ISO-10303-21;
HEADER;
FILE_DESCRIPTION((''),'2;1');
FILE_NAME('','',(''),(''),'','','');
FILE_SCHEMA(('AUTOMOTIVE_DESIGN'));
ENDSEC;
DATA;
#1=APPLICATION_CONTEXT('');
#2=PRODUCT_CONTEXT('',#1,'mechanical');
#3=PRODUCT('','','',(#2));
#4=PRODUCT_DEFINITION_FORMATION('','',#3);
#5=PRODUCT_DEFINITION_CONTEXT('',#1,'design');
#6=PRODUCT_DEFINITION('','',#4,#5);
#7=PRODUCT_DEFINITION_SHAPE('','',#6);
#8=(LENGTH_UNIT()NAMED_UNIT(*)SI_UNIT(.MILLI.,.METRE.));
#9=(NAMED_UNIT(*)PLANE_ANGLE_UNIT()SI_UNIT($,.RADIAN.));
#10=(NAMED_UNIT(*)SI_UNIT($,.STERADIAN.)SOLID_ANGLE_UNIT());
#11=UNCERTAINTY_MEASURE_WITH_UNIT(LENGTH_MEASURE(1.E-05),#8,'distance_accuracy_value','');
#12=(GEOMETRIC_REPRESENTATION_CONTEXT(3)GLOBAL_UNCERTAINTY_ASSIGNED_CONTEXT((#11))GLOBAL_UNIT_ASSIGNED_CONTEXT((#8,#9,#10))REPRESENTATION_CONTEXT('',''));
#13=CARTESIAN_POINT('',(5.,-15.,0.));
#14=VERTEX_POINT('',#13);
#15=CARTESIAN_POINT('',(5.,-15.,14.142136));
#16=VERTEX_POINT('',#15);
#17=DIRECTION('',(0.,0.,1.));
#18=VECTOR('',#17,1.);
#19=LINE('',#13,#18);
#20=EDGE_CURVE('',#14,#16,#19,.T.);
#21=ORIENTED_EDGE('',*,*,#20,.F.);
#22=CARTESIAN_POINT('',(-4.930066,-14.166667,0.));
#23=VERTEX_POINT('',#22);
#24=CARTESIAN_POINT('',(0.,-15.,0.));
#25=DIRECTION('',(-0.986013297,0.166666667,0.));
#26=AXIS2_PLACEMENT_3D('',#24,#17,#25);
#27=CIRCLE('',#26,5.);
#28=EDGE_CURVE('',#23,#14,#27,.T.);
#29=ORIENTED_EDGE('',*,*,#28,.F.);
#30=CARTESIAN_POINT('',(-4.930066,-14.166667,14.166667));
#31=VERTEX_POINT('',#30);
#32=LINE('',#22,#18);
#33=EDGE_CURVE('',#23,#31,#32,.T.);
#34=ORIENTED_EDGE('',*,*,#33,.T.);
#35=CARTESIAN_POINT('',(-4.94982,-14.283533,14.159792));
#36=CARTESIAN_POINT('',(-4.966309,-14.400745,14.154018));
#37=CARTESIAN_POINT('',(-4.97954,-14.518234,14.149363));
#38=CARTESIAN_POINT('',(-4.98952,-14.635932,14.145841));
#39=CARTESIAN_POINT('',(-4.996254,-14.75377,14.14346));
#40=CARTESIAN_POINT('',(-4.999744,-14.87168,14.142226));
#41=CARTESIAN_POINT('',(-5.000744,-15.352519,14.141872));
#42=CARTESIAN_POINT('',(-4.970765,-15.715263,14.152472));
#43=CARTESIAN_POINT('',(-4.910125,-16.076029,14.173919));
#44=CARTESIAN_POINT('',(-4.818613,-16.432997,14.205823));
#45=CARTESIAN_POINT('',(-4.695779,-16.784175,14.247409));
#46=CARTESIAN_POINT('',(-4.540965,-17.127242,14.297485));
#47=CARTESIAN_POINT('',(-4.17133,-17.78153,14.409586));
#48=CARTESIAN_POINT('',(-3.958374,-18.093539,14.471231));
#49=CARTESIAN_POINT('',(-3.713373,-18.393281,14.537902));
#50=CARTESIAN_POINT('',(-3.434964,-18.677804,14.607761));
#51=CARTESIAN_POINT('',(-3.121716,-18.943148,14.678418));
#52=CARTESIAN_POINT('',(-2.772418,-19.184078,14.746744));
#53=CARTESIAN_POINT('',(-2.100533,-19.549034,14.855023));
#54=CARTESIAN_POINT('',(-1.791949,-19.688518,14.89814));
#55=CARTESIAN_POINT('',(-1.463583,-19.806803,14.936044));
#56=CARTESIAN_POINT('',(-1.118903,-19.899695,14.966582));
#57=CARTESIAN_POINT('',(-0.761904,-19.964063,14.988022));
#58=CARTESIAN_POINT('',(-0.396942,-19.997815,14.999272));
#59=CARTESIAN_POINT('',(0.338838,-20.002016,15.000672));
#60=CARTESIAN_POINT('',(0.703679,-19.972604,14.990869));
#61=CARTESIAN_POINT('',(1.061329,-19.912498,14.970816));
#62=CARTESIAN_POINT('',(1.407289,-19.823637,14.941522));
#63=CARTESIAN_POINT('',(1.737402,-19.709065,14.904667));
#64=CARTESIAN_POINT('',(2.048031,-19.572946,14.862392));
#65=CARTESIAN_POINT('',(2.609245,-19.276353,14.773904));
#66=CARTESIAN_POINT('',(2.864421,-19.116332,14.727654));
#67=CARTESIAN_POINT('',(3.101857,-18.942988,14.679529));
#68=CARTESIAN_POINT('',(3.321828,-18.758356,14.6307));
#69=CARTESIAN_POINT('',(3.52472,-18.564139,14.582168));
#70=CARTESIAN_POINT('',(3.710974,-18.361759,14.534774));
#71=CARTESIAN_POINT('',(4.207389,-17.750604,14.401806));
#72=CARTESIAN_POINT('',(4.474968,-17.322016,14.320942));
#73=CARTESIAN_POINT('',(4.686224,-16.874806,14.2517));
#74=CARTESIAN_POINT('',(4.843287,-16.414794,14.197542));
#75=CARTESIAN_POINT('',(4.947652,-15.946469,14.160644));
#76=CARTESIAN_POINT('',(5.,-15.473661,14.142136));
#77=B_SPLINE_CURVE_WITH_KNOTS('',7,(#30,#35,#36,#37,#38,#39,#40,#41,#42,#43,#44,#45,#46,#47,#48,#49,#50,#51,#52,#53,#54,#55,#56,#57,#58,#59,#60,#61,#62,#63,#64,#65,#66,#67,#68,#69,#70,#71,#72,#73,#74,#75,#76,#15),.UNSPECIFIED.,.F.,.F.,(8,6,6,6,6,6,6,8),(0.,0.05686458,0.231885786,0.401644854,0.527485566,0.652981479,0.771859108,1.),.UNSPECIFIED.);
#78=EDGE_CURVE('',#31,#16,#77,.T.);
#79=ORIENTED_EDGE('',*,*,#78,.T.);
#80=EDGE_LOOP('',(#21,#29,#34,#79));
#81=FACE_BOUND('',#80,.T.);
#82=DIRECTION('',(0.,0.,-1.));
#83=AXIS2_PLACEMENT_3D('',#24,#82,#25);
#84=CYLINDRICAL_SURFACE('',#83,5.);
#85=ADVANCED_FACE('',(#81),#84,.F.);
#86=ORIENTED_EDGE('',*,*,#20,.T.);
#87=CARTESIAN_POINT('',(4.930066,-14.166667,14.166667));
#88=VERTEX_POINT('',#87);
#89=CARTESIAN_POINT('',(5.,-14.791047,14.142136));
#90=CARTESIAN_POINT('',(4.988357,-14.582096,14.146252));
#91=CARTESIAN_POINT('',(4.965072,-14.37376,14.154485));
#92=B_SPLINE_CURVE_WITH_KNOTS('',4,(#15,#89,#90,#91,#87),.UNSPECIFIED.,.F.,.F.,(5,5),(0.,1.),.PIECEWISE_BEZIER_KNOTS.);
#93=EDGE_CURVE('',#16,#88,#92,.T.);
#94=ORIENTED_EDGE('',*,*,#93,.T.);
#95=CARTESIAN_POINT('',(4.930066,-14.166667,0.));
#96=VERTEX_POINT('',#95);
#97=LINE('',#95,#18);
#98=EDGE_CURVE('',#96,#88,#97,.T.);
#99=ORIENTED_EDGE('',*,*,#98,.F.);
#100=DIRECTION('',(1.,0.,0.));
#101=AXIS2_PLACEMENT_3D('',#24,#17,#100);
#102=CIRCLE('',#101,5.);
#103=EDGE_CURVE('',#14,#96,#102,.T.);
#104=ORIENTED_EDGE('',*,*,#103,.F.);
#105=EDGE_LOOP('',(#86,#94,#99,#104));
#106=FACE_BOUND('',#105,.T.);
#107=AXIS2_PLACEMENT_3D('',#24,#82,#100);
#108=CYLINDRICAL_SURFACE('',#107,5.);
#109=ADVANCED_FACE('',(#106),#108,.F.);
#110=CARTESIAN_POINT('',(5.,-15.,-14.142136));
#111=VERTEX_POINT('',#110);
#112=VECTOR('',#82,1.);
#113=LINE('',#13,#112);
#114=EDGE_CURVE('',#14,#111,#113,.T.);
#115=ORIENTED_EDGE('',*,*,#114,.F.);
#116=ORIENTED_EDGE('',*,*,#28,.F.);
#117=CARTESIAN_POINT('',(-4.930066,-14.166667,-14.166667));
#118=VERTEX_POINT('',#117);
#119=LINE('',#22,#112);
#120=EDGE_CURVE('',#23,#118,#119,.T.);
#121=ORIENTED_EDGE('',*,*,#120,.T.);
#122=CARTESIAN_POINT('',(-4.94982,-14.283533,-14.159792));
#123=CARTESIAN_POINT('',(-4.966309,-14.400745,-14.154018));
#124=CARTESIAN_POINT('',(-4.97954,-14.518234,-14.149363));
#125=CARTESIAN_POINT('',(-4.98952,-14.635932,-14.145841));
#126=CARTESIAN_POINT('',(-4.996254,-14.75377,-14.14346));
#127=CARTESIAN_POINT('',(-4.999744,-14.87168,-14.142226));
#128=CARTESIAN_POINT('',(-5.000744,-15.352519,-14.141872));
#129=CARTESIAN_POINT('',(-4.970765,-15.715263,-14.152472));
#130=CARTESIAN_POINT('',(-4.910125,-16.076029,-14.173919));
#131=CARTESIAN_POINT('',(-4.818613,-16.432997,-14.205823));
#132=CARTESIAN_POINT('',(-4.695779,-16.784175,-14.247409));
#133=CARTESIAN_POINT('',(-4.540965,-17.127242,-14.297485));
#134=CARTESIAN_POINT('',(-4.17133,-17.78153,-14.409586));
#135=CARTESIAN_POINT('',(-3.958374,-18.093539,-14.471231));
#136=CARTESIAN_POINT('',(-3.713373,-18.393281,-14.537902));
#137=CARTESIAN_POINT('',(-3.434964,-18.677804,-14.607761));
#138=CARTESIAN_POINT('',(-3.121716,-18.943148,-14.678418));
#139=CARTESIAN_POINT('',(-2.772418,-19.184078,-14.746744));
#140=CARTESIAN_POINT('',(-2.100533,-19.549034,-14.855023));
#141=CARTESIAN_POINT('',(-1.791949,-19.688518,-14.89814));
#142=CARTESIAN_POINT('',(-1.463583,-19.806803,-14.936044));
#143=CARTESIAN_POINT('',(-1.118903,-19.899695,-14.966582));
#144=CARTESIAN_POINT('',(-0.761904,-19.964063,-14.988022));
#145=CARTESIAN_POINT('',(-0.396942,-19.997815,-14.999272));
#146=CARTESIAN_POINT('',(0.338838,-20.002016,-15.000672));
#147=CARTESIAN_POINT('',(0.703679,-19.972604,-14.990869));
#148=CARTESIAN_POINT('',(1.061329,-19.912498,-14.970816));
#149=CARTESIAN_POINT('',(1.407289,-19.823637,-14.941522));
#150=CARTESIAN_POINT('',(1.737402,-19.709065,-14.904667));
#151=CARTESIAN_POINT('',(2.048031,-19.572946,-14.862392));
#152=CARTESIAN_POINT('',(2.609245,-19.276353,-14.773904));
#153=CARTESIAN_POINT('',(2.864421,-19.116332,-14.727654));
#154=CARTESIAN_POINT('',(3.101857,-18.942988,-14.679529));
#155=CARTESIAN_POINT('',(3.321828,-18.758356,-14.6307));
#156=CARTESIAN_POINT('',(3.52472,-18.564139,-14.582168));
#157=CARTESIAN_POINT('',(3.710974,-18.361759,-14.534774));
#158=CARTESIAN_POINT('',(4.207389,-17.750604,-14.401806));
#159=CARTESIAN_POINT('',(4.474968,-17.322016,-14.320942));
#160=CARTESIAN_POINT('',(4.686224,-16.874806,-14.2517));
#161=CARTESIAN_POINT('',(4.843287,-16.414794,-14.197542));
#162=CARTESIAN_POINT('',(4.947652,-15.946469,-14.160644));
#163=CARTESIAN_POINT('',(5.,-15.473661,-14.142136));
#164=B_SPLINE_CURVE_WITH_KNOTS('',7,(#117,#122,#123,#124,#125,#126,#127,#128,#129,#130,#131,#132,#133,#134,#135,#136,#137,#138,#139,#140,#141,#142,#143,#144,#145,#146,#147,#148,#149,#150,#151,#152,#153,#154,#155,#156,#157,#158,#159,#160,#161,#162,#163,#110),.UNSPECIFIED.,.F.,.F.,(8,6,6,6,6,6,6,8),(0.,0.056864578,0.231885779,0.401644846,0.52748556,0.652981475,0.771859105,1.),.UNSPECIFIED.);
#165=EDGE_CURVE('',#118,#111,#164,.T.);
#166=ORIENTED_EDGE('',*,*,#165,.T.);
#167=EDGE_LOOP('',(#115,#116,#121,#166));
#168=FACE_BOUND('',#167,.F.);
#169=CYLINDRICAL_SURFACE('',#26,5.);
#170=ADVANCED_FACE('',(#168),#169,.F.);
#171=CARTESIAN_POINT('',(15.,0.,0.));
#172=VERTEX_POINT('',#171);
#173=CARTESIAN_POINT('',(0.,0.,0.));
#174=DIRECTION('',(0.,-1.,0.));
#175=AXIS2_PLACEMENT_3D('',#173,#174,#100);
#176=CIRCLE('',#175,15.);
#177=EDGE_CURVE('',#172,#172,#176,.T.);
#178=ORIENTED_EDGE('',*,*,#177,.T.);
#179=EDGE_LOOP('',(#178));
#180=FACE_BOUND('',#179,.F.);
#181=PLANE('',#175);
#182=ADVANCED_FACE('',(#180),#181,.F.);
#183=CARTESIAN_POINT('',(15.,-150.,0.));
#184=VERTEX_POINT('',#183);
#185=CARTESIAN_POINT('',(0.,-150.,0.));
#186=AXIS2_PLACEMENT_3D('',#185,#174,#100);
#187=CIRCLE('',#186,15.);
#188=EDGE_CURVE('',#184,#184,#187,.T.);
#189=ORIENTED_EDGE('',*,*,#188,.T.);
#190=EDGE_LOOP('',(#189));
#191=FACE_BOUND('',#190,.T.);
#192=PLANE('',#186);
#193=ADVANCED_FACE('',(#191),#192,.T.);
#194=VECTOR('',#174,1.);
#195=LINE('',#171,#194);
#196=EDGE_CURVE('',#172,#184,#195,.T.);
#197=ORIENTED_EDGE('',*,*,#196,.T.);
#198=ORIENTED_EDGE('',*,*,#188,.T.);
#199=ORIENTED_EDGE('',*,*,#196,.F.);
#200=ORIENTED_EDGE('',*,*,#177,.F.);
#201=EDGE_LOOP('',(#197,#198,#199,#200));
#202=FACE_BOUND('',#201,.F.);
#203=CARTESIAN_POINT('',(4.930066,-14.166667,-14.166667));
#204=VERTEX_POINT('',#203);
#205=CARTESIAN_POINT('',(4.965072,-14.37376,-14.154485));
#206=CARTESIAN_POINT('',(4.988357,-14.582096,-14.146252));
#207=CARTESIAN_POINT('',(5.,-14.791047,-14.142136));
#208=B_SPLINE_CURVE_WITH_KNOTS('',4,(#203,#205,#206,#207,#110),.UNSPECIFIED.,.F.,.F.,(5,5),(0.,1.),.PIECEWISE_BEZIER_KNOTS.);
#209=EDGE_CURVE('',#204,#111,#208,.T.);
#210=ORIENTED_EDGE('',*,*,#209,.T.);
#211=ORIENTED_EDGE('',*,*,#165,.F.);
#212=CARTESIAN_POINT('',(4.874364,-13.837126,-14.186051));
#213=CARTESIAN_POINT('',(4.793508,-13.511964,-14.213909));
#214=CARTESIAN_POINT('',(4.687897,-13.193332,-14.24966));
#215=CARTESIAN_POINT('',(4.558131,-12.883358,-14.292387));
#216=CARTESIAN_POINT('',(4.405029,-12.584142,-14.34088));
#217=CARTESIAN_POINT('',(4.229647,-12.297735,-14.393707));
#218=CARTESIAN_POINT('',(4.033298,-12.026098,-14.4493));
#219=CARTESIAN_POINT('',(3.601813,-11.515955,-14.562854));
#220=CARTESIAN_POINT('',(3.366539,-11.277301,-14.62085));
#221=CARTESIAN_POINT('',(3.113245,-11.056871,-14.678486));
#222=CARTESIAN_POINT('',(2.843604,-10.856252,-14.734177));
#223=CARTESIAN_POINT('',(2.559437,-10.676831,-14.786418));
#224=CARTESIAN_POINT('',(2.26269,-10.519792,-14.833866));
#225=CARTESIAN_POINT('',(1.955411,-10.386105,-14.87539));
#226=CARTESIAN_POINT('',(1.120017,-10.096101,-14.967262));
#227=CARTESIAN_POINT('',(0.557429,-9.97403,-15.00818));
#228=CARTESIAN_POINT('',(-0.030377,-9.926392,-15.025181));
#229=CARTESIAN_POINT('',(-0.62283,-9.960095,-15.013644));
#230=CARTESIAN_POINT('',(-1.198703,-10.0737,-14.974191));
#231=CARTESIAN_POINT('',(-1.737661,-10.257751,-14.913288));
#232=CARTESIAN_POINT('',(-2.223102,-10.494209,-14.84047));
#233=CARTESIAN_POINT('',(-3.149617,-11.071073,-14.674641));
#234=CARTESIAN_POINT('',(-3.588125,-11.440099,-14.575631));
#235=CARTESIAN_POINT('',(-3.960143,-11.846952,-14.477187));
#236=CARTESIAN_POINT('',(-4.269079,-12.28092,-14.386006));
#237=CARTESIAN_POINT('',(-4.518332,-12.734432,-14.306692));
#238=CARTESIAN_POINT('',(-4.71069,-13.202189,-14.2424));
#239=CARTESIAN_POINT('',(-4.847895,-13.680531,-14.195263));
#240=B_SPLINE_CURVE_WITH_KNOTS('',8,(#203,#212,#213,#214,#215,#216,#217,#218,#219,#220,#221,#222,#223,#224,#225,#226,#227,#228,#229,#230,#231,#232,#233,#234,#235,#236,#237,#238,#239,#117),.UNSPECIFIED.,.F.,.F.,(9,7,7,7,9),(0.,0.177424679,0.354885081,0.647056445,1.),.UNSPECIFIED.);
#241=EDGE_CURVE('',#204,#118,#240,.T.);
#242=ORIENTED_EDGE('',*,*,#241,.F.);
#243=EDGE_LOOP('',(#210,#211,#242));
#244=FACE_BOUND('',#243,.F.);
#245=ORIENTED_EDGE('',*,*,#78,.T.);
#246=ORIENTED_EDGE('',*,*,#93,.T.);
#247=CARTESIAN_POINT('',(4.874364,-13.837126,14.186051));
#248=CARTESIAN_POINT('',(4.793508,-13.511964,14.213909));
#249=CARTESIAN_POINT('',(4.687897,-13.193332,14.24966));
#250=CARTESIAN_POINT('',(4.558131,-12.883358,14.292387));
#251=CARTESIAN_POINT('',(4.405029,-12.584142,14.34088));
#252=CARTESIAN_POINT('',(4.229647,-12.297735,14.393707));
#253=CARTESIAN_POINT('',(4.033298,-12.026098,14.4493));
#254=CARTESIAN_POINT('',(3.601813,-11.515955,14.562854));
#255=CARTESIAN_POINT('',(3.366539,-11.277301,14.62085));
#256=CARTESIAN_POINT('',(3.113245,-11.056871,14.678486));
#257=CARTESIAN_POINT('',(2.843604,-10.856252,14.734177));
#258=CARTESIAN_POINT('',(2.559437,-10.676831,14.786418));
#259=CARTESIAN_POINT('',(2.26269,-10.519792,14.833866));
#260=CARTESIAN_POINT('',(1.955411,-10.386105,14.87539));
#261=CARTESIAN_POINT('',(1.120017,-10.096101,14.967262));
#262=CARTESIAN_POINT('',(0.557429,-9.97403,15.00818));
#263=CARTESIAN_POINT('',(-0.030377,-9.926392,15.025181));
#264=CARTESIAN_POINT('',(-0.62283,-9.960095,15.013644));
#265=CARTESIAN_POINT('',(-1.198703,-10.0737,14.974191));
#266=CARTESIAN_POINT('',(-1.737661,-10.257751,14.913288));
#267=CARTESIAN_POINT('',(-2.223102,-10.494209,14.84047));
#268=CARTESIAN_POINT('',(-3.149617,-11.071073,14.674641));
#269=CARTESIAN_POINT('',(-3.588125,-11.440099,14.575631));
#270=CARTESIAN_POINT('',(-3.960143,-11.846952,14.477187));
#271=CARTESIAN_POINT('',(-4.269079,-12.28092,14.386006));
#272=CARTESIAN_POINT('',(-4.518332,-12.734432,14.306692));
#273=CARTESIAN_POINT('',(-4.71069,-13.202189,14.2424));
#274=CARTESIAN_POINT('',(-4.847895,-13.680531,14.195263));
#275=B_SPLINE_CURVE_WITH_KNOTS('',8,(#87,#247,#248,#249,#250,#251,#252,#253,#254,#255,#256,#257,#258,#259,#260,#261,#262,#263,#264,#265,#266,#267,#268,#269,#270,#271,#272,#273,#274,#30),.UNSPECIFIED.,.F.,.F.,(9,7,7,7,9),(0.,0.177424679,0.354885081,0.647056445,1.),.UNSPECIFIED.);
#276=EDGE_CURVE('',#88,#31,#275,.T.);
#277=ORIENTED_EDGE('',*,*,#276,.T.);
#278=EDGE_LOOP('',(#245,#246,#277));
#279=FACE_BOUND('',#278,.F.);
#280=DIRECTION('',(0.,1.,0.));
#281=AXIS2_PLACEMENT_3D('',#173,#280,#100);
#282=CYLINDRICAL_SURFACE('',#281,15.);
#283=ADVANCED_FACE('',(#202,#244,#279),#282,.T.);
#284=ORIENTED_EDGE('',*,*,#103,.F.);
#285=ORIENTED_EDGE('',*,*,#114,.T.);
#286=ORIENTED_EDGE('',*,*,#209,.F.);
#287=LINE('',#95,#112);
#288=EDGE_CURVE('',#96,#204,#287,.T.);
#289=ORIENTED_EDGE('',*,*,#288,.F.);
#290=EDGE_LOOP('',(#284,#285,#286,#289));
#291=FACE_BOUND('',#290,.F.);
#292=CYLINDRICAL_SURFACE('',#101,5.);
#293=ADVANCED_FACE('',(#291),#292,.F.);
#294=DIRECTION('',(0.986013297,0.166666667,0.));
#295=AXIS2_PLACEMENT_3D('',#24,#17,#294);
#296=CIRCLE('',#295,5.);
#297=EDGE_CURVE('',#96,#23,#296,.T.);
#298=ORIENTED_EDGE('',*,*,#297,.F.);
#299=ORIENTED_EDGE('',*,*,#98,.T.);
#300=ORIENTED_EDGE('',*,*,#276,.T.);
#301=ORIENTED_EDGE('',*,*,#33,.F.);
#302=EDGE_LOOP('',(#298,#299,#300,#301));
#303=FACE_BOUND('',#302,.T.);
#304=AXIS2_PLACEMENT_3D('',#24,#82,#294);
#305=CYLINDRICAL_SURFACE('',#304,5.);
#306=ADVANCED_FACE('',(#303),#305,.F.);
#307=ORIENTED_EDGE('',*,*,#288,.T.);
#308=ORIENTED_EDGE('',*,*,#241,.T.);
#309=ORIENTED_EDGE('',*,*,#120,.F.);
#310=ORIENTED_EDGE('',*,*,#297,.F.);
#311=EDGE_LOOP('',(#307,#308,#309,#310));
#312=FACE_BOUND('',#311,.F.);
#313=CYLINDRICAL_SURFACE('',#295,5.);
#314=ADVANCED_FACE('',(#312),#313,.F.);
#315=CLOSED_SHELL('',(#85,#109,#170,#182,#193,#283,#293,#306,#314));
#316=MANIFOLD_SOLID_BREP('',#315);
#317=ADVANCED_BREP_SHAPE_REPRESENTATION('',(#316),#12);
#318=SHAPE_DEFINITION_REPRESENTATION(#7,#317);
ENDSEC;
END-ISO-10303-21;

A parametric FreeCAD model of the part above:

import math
import FreeCAD as App
import Part
import Sketcher
Q = App.Units.Quantity

doc = App.newDocument("Part")
body = doc.addObject("PartDesign::Body", "Body")

# Sketch on XZ plane
sketch1 = body.newObject("Sketcher::SketchObject", "Sketch")
sketch1.AttachmentSupport = (doc.getObject("XZ_Plane"), [""])
sketch1.MapMode = "FlatFace"
sketch1.addGeometry(Part.Circle(App.Vector(0, 0, 0), App.Vector(0, 0, 1), 15), False)
sketch1.addConstraint(Sketcher.Constraint("Coincident", 0, 3, -1, 1))
sketch1.addConstraint(Sketcher.Constraint("Diameter", 0, Q("30 mm")))
pad1 = body.newObject("PartDesign::Pad", "Pad")
pad1.Profile = sketch1
pad1.Length = 150

# Sketch on XY plane
sketch2 = body.newObject("Sketcher::SketchObject", "Sketch001")
sketch2.AttachmentSupport = (doc.getObject("XY_Plane"), [""])
sketch2.MapMode = "FlatFace"
sketch2.addGeometry(Part.ArcOfCircle(Part.Circle(App.Vector(0, -15, 0), App.Vector(0, 0, 1), 5), math.radians(170), math.radians(360)), False)
sketch2.addGeometry(Part.ArcOfCircle(Part.Circle(App.Vector(0, -15, 0), App.Vector(0, 0, 1), 5), math.radians(0), math.radians(9.59)), False)
sketch2.addGeometry(Part.ArcOfCircle(Part.Circle(App.Vector(0, -15, 0), App.Vector(0, 0, 1), 5), math.radians(10), math.radians(170)), False)
sketch2.addConstraint(Sketcher.Constraint("Tangent", 0, 2, 1, 1))
sketch2.addConstraint(Sketcher.Constraint("Tangent", 1, 2, 2, 1))
sketch2.addConstraint(Sketcher.Constraint("Tangent", 2, 2, 0, 1))
sketch2.addConstraint(Sketcher.Constraint("Symmetric", 1, 2, 2, 2, -2))
sketch2.addConstraint(Sketcher.Constraint("Horizontal", 2, 3, 0, 2))
sketch2.addConstraint(Sketcher.Constraint("Radius", 0, Q("5 mm")))
sketch2.addConstraint(Sketcher.Constraint("DistanceY", 0, 3, -1, 1, Q("15 mm")))
sketch2.addConstraint(Sketcher.Constraint("DistanceX", -1, 1, 1, 2, Q("4.930066 mm")))
pocket1 = body.newObject("PartDesign::Pocket", "Pocket")
pocket1.Profile = sketch2
pocket1.Length = 39.8
pocket1.Midplane = True

doc.recompute()
